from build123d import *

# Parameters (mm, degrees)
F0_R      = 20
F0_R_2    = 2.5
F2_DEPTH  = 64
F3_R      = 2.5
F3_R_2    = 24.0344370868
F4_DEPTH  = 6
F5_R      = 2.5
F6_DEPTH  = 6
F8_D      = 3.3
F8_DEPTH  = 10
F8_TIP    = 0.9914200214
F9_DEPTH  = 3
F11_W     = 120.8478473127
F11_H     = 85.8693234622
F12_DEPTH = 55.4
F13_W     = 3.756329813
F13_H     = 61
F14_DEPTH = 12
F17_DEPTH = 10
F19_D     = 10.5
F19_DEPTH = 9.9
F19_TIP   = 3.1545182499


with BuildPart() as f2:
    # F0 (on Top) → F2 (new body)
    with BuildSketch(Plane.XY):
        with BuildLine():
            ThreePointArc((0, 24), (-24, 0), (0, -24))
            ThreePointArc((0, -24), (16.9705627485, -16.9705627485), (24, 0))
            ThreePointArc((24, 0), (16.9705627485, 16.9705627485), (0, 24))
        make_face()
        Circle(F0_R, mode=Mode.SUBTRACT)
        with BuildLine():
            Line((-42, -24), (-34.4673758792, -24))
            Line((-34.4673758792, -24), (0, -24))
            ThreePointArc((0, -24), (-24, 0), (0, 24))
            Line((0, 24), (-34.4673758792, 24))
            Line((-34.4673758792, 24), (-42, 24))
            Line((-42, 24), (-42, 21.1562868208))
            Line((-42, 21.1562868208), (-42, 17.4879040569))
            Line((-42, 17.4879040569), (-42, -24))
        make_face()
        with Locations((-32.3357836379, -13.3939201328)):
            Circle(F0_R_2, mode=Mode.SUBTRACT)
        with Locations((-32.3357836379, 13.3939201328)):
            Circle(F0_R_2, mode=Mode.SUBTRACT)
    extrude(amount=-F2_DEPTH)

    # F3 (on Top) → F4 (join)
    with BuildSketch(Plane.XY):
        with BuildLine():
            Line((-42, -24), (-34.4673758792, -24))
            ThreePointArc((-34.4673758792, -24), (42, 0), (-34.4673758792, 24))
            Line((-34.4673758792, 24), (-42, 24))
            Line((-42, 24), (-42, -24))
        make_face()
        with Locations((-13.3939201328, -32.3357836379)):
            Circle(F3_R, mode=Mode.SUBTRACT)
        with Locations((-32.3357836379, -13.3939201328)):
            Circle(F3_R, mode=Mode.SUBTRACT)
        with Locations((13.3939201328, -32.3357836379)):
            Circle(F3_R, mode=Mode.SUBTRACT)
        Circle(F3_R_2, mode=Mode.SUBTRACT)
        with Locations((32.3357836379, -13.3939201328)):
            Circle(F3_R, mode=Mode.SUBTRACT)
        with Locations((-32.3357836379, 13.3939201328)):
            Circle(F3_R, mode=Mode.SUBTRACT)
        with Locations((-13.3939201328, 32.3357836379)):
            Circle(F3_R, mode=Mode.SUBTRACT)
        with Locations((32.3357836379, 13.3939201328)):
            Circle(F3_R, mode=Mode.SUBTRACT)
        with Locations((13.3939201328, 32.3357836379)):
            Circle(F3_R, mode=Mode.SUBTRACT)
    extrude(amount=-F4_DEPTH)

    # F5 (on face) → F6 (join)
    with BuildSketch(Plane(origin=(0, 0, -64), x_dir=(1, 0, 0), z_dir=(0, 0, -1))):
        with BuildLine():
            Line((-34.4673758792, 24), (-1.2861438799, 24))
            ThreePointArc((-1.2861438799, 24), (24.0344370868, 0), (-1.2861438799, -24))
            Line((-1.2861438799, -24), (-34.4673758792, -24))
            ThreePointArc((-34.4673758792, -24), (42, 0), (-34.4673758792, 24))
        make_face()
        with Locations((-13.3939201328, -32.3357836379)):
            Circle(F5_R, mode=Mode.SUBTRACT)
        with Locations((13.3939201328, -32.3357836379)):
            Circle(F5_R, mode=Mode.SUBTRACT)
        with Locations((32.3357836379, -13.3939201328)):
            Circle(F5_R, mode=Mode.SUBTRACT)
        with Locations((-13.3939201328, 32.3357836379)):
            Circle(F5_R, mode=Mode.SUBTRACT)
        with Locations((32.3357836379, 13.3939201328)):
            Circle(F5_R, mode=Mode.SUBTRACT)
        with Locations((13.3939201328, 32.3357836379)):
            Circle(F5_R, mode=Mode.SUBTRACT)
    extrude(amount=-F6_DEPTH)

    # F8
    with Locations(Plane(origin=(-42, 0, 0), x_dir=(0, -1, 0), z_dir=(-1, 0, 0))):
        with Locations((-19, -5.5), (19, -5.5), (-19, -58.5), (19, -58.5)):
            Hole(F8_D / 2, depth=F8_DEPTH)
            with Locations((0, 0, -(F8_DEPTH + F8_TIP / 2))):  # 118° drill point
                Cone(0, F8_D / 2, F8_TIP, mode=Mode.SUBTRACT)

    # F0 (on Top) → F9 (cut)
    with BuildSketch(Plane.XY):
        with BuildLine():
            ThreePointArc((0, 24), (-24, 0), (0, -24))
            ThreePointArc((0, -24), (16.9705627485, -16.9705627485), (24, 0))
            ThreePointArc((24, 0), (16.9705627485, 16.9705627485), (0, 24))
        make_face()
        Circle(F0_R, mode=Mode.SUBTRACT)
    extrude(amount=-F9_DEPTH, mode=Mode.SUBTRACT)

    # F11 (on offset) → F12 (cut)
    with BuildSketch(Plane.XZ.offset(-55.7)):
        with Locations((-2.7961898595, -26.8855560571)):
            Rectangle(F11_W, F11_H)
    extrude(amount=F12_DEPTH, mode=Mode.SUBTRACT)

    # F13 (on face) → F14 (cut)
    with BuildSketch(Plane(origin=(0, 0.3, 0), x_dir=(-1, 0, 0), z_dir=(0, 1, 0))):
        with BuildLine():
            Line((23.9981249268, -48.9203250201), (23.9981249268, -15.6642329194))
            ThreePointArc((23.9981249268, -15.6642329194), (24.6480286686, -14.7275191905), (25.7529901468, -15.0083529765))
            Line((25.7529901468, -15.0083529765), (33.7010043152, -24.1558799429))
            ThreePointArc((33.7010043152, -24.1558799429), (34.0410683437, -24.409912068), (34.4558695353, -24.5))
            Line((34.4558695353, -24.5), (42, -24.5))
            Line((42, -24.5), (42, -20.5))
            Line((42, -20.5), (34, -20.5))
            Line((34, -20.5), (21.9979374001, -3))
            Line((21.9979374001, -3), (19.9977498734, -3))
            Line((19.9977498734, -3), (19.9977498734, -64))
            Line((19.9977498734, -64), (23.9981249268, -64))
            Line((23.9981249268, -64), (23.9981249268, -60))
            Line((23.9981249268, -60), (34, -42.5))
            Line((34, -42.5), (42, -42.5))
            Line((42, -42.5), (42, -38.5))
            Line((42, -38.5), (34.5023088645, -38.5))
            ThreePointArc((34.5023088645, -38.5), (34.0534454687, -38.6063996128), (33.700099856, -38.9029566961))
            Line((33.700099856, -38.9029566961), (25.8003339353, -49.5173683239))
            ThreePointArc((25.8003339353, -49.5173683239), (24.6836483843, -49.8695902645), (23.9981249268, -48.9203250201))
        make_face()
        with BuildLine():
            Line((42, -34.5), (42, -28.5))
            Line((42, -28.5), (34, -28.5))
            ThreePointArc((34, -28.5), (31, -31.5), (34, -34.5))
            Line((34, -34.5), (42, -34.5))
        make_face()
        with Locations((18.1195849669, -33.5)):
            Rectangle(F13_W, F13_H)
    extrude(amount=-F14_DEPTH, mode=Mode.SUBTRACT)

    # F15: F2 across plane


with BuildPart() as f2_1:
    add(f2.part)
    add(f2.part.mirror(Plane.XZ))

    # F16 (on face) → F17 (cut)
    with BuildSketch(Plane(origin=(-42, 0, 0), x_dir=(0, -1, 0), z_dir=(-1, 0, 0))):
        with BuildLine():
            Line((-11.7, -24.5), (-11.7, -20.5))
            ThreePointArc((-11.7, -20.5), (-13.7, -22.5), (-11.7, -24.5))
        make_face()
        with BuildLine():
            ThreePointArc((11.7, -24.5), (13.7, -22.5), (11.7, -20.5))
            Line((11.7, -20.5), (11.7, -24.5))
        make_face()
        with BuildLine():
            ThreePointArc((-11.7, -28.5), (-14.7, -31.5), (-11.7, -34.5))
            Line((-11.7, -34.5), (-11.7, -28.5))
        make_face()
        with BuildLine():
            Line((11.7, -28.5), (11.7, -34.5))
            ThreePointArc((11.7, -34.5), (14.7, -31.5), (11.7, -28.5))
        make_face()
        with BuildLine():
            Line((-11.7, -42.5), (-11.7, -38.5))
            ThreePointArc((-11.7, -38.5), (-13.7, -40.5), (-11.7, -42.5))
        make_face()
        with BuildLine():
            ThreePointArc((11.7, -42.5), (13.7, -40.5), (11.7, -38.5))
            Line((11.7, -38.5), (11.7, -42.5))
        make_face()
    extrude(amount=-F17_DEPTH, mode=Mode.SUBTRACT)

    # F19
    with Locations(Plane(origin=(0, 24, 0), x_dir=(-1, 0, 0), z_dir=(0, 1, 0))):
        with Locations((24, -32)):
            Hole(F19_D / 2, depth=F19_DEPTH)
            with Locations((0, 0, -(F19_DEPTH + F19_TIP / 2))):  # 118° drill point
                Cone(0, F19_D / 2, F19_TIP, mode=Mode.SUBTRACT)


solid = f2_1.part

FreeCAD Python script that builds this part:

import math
import FreeCAD as App
import Part
import Sketcher
Q = App.Units.Quantity

doc = App.newDocument("Part")
body = doc.addObject("PartDesign::Body", "Body")

# Sketch on XY plane
sketch1 = body.newObject("Sketcher::SketchObject", "Sketch")
sketch1.AttachmentSupport = (doc.getObject("XY_Plane"), [""])
sketch1.MapMode = "FlatFace"
sketch1.addGeometry(Part.ArcOfCircle(Part.Circle(App.Vector(0, 0, 0), App.Vector(0, 0, 1), 24), math.radians(0), math.radians(90)), False)
sketch1.addGeometry(Part.LineSegment(App.Vector(0, 24, 0), App.Vector(-42, 24, 0)), False)
sketch1.addGeometry(Part.LineSegment(App.Vector(-42, 24, 0), App.Vector(-42, -24, 0)), False)
sketch1.addGeometry(Part.LineSegment(App.Vector(-42, -24, 0), App.Vector(0, -24, 0)), False)
sketch1.addGeometry(Part.ArcOfCircle(Part.Circle(App.Vector(0, 0, 0), App.Vector(0, 0, 1), 24), math.radians(-90), math.radians(0)), False)
sketch1.addGeometry(Part.Circle(App.Vector(-32.335784, -13.39392, 0), App.Vector(0, 0, 1), 2.5), False)
sketch1.addGeometry(Part.Circle(App.Vector(-32.335784, 13.39392, 0), App.Vector(0, 0, 1), 2.5), False)
sketch1.addGeometry(Part.Circle(App.Vector(0, 0, 0), App.Vector(0, 0, 1), 20), False)
sketch1.addConstraint(Sketcher.Constraint("Tangent", 0, 2, 1, 1))
sketch1.addConstraint(Sketcher.Constraint("Coincident", 1, 2, 2, 1))
sketch1.addConstraint(Sketcher.Constraint("Coincident", 2, 2, 3, 1))
sketch1.addConstraint(Sketcher.Constraint("Tangent", 3, 2, 4, 1))
sketch1.addConstraint(Sketcher.Constraint("Tangent", 4, 2, 0, 1))
sketch1.addConstraint(Sketcher.Constraint("Horizontal", 1))
sketch1.addConstraint(Sketcher.Constraint("Vertical", 2))
sketch1.addConstraint(Sketcher.Constraint("Horizontal", 3))
sketch1.addConstraint(Sketcher.Constraint("Coincident", 0, 3, -1, 1))
sketch1.addConstraint(Sketcher.Constraint("Coincident", 7, 3, -1, 1))
sketch1.addConstraint(Sketcher.Constraint("Equal", 0, 4))
sketch1.addConstraint(Sketcher.Constraint("Equal", 5, 6))
sketch1.addConstraint(Sketcher.Constraint("Symmetric", 5, 3, 6, 3, -1))
sketch1.addConstraint(Sketcher.Constraint("PointOnObject", 4, 2, -1))
sketch1.addConstraint(Sketcher.Constraint("Diameter", 5, Q("5 mm")))
sketch1.addConstraint(Sketcher.Constraint("Diameter", 7, Q("40 mm")))
sketch1.addConstraint(Sketcher.Constraint("Radius", 0, Q("24 mm")))
sketch1.addConstraint(Sketcher.Constraint("DistanceX", 1, 2, 1, 1, Q("42 mm")))
sketch1.addConstraint(Sketcher.Constraint("DistanceY", 5, 3, -1, 1, Q("13.39392 mm")))
sketch1.addConstraint(Sketcher.Constraint("DistanceX", 5, 3, -1, 1, Q("32.335784 mm")))
pad1 = body.newObject("PartDesign::Pad", "Pad")
pad1.Profile = sketch1
pad1.Length = 64
pad1.Reversed = True

# Sketch on XY plane
sketch2 = body.newObject("Sketcher::SketchObject", "Sketch001")
sketch2.AttachmentSupport = (doc.getObject("XY_Plane"), [""])
sketch2.MapMode = "FlatFace"
sketch2.addGeometry(Part.LineSegment(App.Vector(-42, -24, 0), App.Vector(-34.467376, -24, 0)), False)
sketch2.addGeometry(Part.ArcOfCircle(Part.Circle(App.Vector(0, 0, 0), App.Vector(0, 0, 1), 42), math.radians(-145.150095), math.radians(145.150095)), False)
sketch2.addGeometry(Part.LineSegment(App.Vector(-34.467376, 24, 0), App.Vector(-42, 24, 0)), False)
sketch2.addGeometry(Part.LineSegment(App.Vector(-42, 24, 0), App.Vector(-42, -24, 0)), False)
sketch2.addGeometry(Part.Circle(App.Vector(-13.39392, -32.335784, 0), App.Vector(0, 0, 1), 2.5), False)
sketch2.addGeometry(Part.Circle(App.Vector(-32.335784, -13.39392, 0), App.Vector(0, 0, 1), 2.5), False)
sketch2.addGeometry(Part.Circle(App.Vector(13.39392, -32.335784, 0), App.Vector(0, 0, 1), 2.5), False)
sketch2.addGeometry(Part.Circle(App.Vector(32.335784, -13.39392, 0), App.Vector(0, 0, 1), 2.5), False)
sketch2.addGeometry(Part.Circle(App.Vector(-32.335784, 13.39392, 0), App.Vector(0, 0, 1), 2.5), False)
sketch2.addGeometry(Part.Circle(App.Vector(-13.39392, 32.335784, 0), App.Vector(0, 0, 1), 2.5), False)
sketch2.addGeometry(Part.Circle(App.Vector(0, 0, 0), App.Vector(0, 0, 1), 24.034437), False)
sketch2.addGeometry(Part.Circle(App.Vector(32.335784, 13.39392, 0), App.Vector(0, 0, 1), 2.5), False)
sketch2.addGeometry(Part.Circle(App.Vector(13.39392, 32.335784, 0), App.Vector(0, 0, 1), 2.5), False)
sketch2.addConstraint(Sketcher.Constraint("Coincident", 0, 2, 1, 1))
sketch2.addConstraint(Sketcher.Constraint("Coincident", 1, 2, 2, 1))
sketch2.addConstraint(Sketcher.Constraint("Coincident", 2, 2, 3, 1))
sketch2.addConstraint(Sketcher.Constraint("Coincident", 3, 2, 0, 1))
sketch2.addConstraint(Sketcher.Constraint("Horizontal", 0))
sketch2.addConstraint(Sketcher.Constraint("Horizontal", 2))
sketch2.addConstraint(Sketcher.Constraint("Vertical", 3))
sketch2.addConstraint(Sketcher.Constraint("Coincident", 1, 3, -1, 1))
sketch2.addConstraint(Sketcher.Constraint("Coincident", 10, 3, -1, 1))
sketch2.addConstraint(Sketcher.Constraint("Equal", 4, 5))
sketch2.addConstraint(Sketcher.Constraint("Equal", 5, 6))
sketch2.addConstraint(Sketcher.Constraint("Equal", 6, 7))
sketch2.addConstraint(Sketcher.Constraint("Equal", 7, 8))
sketch2.addConstraint(Sketcher.Constraint("Equal", 8, 9))
sketch2.addConstraint(Sketcher.Constraint("Equal", 9, 11))
sketch2.addConstraint(Sketcher.Constraint("Equal", 11, 12))
sketch2.addConstraint(Sketcher.Constraint("Symmetric", 7, 3, 8, 3, -1, 1))
sketch2.addConstraint(Sketcher.Constraint("Symmetric", 6, 3, 9, 3, -1, 1))
sketch2.addConstraint(Sketcher.Constraint("Symmetric", 5, 3, 11, 3, -1, 1))
sketch2.addConstraint(Sketcher.Constraint("Symmetric", 4, 3, 12, 3, -1, 1))
sketch2.addConstraint(Sketcher.Constraint("Symmetric", 4, 3, 6, 3, -2))
sketch2.addConstraint(Sketcher.Constraint("Symmetric", 5, 3, 7, 3, -2))
sketch2.addConstraint(Sketcher.Constraint("Vertical", 0, 2, 1, 2))
sketch2.addConstraint(Sketcher.Constraint("Diameter", 4, Q("5 mm")))
sketch2.addConstraint(Sketcher.Constraint("Radius", 1, Q("42 mm")))
sketch2.addConstraint(Sketcher.Constraint("DistanceY", 3, 2, 3, 1, Q("48 mm")))
sketch2.addConstraint(Sketcher.Constraint("DistanceX", 2, 2, -1, 1, Q("42 mm")))
sketch2.addConstraint(Sketcher.Constraint("Diameter", 10, Q("48.068874 mm")))
sketch2.addConstraint(Sketcher.Constraint("DistanceX", 4, 3, -1, 1, Q("13.39392 mm")))
sketch2.addConstraint(Sketcher.Constraint("DistanceY", 5, 3, -1, 1, Q("13.39392 mm")))
sketch2.addConstraint(Sketcher.Constraint("DistanceY", 4, 3, -1, 1, Q("32.335784 mm")))
sketch2.addConstraint(Sketcher.Constraint("DistanceX", 5, 3, -1, 1, Q("32.335784 mm")))
pad2 = body.newObject("PartDesign::Pad", "Pad001")
pad2.Profile = sketch2
pad2.Length = 6
pad2.Reversed = True

# Sketch on XY plane
sketch3 = body.newObject("Sketcher::SketchObject", "Sketch002")
sketch3.AttachmentSupport = (doc.getObject("XY_Plane"), [""])
sketch3.MapMode = "FlatFace"
sketch3.AttachmentOffset = App.Placement(App.Vector(0, 0, -64), App.Rotation())
sketch3.addGeometry(Part.LineSegment(App.Vector(-34.467376, -24, 0), App.Vector(-1.286144, -24, 0)), False)
sketch3.addGeometry(Part.ArcOfCircle(Part.Circle(App.Vector(0, 0, 0), App.Vector(0, 0, 1), 24.034437), math.radians(-93.067508), math.radians(93.067508)), False)
sketch3.addGeometry(Part.LineSegment(App.Vector(-1.286144, 24, 0), App.Vector(-34.467376, 24, 0)), False)
sketch3.addGeometry(Part.ArcOfCircle(Part.Circle(App.Vector(0, 0, 0), App.Vector(0, 0, 1), 42), math.radians(-145.150095), math.radians(145.150095)), False)
sketch3.addGeometry(Part.Circle(App.Vector(-13.39392, 32.335784, 0), App.Vector(0, 0, 1), 2.5), False)
sketch3.addGeometry(Part.Circle(App.Vector(13.39392, 32.335784, 0), App.Vector(0, 0, 1), 2.5), False)
sketch3.addGeometry(Part.Circle(App.Vector(32.335784, 13.39392, 0), App.Vector(0, 0, 1), 2.5), False)
sketch3.addGeometry(Part.Circle(App.Vector(-13.39392, -32.335784, 0), App.Vector(0, 0, 1), 2.5), False)
sketch3.addGeometry(Part.Circle(App.Vector(32.335784, -13.39392, 0), App.Vector(0, 0, 1), 2.5), False)
sketch3.addGeometry(Part.Circle(App.Vector(13.39392, -32.335784, 0), App.Vector(0, 0, 1), 2.5), False)
sketch3.addConstraint(Sketcher.Constraint("Coincident", 0, 2, 1, 1))
sketch3.addConstraint(Sketcher.Constraint("Coincident", 1, 2, 2, 1))
sketch3.addConstraint(Sketcher.Constraint("Coincident", 2, 2, 3, 2))
sketch3.addConstraint(Sketcher.Constraint("Coincident", 3, 1, 0, 1))
sketch3.addConstraint(Sketcher.Constraint("Horizontal", 0))
sketch3.addConstraint(Sketcher.Constraint("Horizontal", 2))
sketch3.addConstraint(Sketcher.Constraint("Coincident", 1, 3, -1, 1))
sketch3.addConstraint(Sketcher.Constraint("Coincident", 3, 3, -1, 1))
sketch3.addConstraint(Sketcher.Constraint("Equal", 4, 5))
sketch3.addConstraint(Sketcher.Constraint("Equal", 5, 6))
sketch3.addConstraint(Sketcher.Constraint("Equal", 6, 7))
sketch3.addConstraint(Sketcher.Constraint("Equal", 7, 8))
sketch3.addConstraint(Sketcher.Constraint("Equal", 8, 9))
sketch3.addConstraint(Sketcher.Constraint("Symmetric", 5, 3, 7, 3, -1, 1))
sketch3.addConstraint(Sketcher.Constraint("Symmetric", 4, 3, 9, 3, -1, 1))
sketch3.addConstraint(Sketcher.Constraint("Symmetric", 4, 3, 5, 3, -2))
sketch3.addConstraint(Sketcher.Constraint("Symmetric", 6, 3, 8, 3, -1))
sketch3.addConstraint(Sketcher.Constraint("Vertical", 0, 2, 1, 2))
sketch3.addConstraint(Sketcher.Constraint("Diameter", 4, Q("5 mm")))
sketch3.addConstraint(Sketcher.Constraint("Radius", 3, Q("42 mm")))
sketch3.addConstraint(Sketcher.Constraint("DistanceY", 0, 2, -1, 1, Q("24 mm")))
sketch3.addConstraint(Sketcher.Constraint("Radius", 1, Q("24.034437 mm")))
sketch3.addConstraint(Sketcher.Constraint("DistanceX", 4, 3, -1, 1, Q("13.39392 mm")))
sketch3.addConstraint(Sketcher.Constraint("DistanceY", -1, 1, 6, 3, Q("13.39392 mm")))
sketch3.addConstraint(Sketcher.Constraint("DistanceY", -1, 1, 4, 3, Q("32.335784 mm")))
sketch3.addConstraint(Sketcher.Constraint("DistanceX", -1, 1, 6, 3, Q("32.335784 mm")))
pad3 = body.newObject("PartDesign::Pad", "Pad002")
pad3.Profile = sketch3
pad3.Length = 6

# Sketch on YZ plane
sketch4 = body.newObject("Sketcher::SketchObject", "Sketch003")
sketch4.AttachmentSupport = (doc.getObject("YZ_Plane"), [""])
sketch4.MapMode = "FlatFace"
sketch4.AttachmentOffset = App.Placement(App.Vector(0, 0, -42), App.Rotation())
sketch4.addGeometry(Part.Circle(App.Vector(19, -5.5, 0), App.Vector(0, 0, 1), 1.65), False)
sketch4.addGeometry(Part.Circle(App.Vector(-19, -5.5, 0), App.Vector(0, 0, 1), 1.65), False)
sketch4.addGeometry(Part.Circle(App.Vector(19, -58.5, 0), App.Vector(0, 0, 1), 1.65), False)
sketch4.addGeometry(Part.Circle(App.Vector(-19, -58.5, 0), App.Vector(0, 0, 1), 1.65), False)
sketch4.addConstraint(Sketcher.Constraint("Equal", 0, 1))
sketch4.addConstraint(Sketcher.Constraint("Equal", 1, 2))
sketch4.addConstraint(Sketcher.Constraint("Equal", 2, 3))
sketch4.addConstraint(Sketcher.Constraint("Symmetric", 0, 3, 1, 3, -2))
sketch4.addConstraint(Sketcher.Constraint("Symmetric", 2, 3, 3, 3, -2))
sketch4.addConstraint(Sketcher.Constraint("Vertical", 0, 3, 2, 3))
sketch4.addConstraint(Sketcher.Constraint("Diameter", 0, Q("3.3 mm")))
sketch4.addConstraint(Sketcher.Constraint("DistanceX", -1, 1, 0, 3, Q("19 mm")))
sketch4.addConstraint(Sketcher.Constraint("DistanceY", 2, 3, 0, 3, Q("53 mm")))
sketch4.addConstraint(Sketcher.Constraint("DistanceY", 0, 3, -1, 1, Q("5.5 mm")))
doc.recompute()
hole = body.newObject("PartDesign::Hole", "Hole")
hole.Profile = sketch4
hole.ThreadType = "None"
hole.Diameter = 3.3
hole.DepthType = "Dimension"
hole.Depth = 10
hole.DrillPoint = "Angled"
hole.DrillPointAngle = 118
hole.Reversed = True

# Sketch on XY plane
sketch5 = body.newObject("Sketcher::SketchObject", "Sketch004")
sketch5.AttachmentSupport = (doc.getObject("XY_Plane"), [""])
sketch5.MapMode = "FlatFace"
sketch5.addGeometry(Part.ArcOfCircle(Part.Circle(App.Vector(0, 0, 0), App.Vector(0, 0, 1), 24), math.radians(90), math.radians(270)), False)
sketch5.addGeometry(Part.ArcOfCircle(Part.Circle(App.Vector(0, 0, 0), App.Vector(0, 0, 1), 24), math.radians(-90), math.radians(0)), False)
sketch5.addGeometry(Part.ArcOfCircle(Part.Circle(App.Vector(0, 0, 0), App.Vector(0, 0, 1), 24), math.radians(0), math.radians(90)), False)
sketch5.addGeometry(Part.Circle(App.Vector(0, 0, 0), App.Vector(0, 0, 1), 20), False)
sketch5.addConstraint(Sketcher.Constraint("Tangent", 0, 2, 1, 1))
sketch5.addConstraint(Sketcher.Constraint("Tangent", 1, 2, 2, 1))
sketch5.addConstraint(Sketcher.Constraint("Tangent", 2, 2, 0, 1))
sketch5.addConstraint(Sketcher.Constraint("Coincident", 0, 3, -1, 1))
sketch5.addConstraint(Sketcher.Constraint("Coincident", 3, 3, -1, 1))
sketch5.addConstraint(Sketcher.Constraint("PointOnObject", 0, 2, -2))
sketch5.addConstraint(Sketcher.Constraint("PointOnObject", 1, 2, -1))
sketch5.addConstraint(Sketcher.Constraint("PointOnObject", 2, 2, -2))
sketch5.addConstraint(Sketcher.Constraint("Diameter", 3, Q("40 mm")))
sketch5.addConstraint(Sketcher.Constraint("Radius", 0, Q("24 mm")))
pocket1 = body.newObject("PartDesign::Pocket", "Pocket")
pocket1.Profile = sketch5
pocket1.Length = 3

# Sketch on XZ plane
sketch6 = body.newObject("Sketcher::SketchObject", "Sketch005")
sketch6.AttachmentSupport = (doc.getObject("XZ_Plane"), [""])
sketch6.MapMode = "FlatFace"
sketch6.AttachmentOffset = App.Placement(App.Vector(0, 0, -55.7), App.Rotation())
sketch6.addGeometry(Part.LineSegment(App.Vector(-63.220114, 16.049106, 0), App.Vector(-63.220114, -69.820218, 0)), False)
sketch6.addGeometry(Part.LineSegment(App.Vector(-63.220114, -69.820218, 0), App.Vector(57.627734, -69.820218, 0)), False)
sketch6.addGeometry(Part.LineSegment(App.Vector(57.627734, -69.820218, 0), App.Vector(57.627734, 16.049106, 0)), False)
sketch6.addGeometry(Part.LineSegment(App.Vector(57.627734, 16.049106, 0), App.Vector(-63.220114, 16.049106, 0)), False)
sketch6.addConstraint(Sketcher.Constraint("Coincident", 0, 2, 1, 1))
sketch6.addConstraint(Sketcher.Constraint("Coincident", 1, 2, 2, 1))
sketch6.addConstraint(Sketcher.Constraint("Coincident", 2, 2, 3, 1))
sketch6.addConstraint(Sketcher.Constraint("Coincident", 3, 2, 0, 1))
sketch6.addConstraint(Sketcher.Constraint("Vertical", 0))
sketch6.addConstraint(Sketcher.Constraint("Horizontal", 1))
sketch6.addConstraint(Sketcher.Constraint("Vertical", 2))
sketch6.addConstraint(Sketcher.Constraint("Horizontal", 3))
sketch6.addConstraint(Sketcher.Constraint("DistanceX", 1, 1, 1, 2, Q("120.847847 mm")))
sketch6.addConstraint(Sketcher.Constraint("DistanceY", 0, 2, 0, 1, Q("85.869323 mm")))
sketch6.addConstraint(Sketcher.Constraint("DistanceX", 0, 2, -1, 1, Q("63.220114 mm")))
sketch6.addConstraint(Sketcher.Constraint("DistanceY", 0, 2, -1, 1, Q("69.820218 mm")))
pocket2 = body.newObject("PartDesign::Pocket", "Pocket001")
pocket2.Profile = sketch6
pocket2.Length = 55.4
pocket2.Reversed = True

# Sketch on XZ plane
sketch7 = body.newObject("Sketcher::SketchObject", "Sketch006")
sketch7.AttachmentSupport = (doc.getObject("XZ_Plane"), [""])
sketch7.MapMode = "FlatFace"
sketch7.AttachmentOffset = App.Placement(App.Vector(0, 0, -0.3), App.Rotation())
sketch7.addGeometry(Part.LineSegment(App.Vector(-23.998125, -48.920325, 0), App.Vector(-23.998125, -15.664233, 0)), False)
sketch7.addGeometry(Part.ArcOfCircle(Part.Circle(App.Vector(-24.998125, -15.664233, 0), App.Vector(0, 0, 1), 1), math.radians(0), math.radians(139.013594)), False)
sketch7.addGeometry(Part.LineSegment(App.Vector(-25.75299, -15.008353, 0), App.Vector(-33.701004, -24.15588, 0)), False)
sketch7.addGeometry(Part.ArcOfCircle(Part.Circle(App.Vector(-34.45587, -23.5, 0), App.Vector(0, 0, 1), 1), math.radians(-90), math.radians(-40.986406)), False)
sketch7.addGeometry(Part.LineSegment(App.Vector(-34.45587, -24.5, 0), App.Vector(-42, -24.5, 0)), False)
sketch7.addGeometry(Part.LineSegment(App.Vector(-42, -24.5, 0), App.Vector(-42, -20.5, 0)), False)
sketch7.addGeometry(Part.LineSegment(App.Vector(-42, -20.5, 0), App.Vector(-34, -20.5, 0)), False)
sketch7.addGeometry(Part.LineSegment(App.Vector(-34, -20.5, 0), App.Vector(-21.997937, -3, 0)), False)
sketch7.addGeometry(Part.LineSegment(App.Vector(-21.997937, -3, 0), App.Vector(-16.24142, -3, 0)), False)
sketch7.addGeometry(Part.LineSegment(App.Vector(-16.24142, -3, 0), App.Vector(-16.24142, -64, 0)), False)
sketch7.addGeometry(Part.LineSegment(App.Vector(-16.24142, -64, 0), App.Vector(-23.998125, -64, 0)), False)
sketch7.addGeometry(Part.LineSegment(App.Vector(-23.998125, -64, 0), App.Vector(-23.998125, -60, 0)), False)
sketch7.addGeometry(Part.LineSegment(App.Vector(-23.998125, -60, 0), App.Vector(-34, -42.5, 0)), False)
sketch7.addGeometry(Part.LineSegment(App.Vector(-34, -42.5, 0), App.Vector(-42, -42.5, 0)), False)
sketch7.addGeometry(Part.LineSegment(App.Vector(-42, -42.5, 0), App.Vector(-42, -38.5, 0)), False)
sketch7.addGeometry(Part.LineSegment(App.Vector(-42, -38.5, 0), App.Vector(-34.502309, -38.5, 0)), False)
sketch7.addGeometry(Part.ArcOfCircle(Part.Circle(App.Vector(-34.502309, -39.5, 0), App.Vector(0, 0, 1), 1), math.radians(36.658432), math.radians(90)), False)
sketch7.addGeometry(Part.LineSegment(App.Vector(-33.7001, -38.902957, 0), App.Vector(-25.800334, -49.517368, 0)), False)
sketch7.addGeometry(Part.ArcOfCircle(Part.Circle(App.Vector(-24.998125, -48.920325, 0), App.Vector(0, 0, 1), 1), math.radians(-143.341568), math.radians(0)), False)
sketch7.addGeometry(Part.LineSegment(App.Vector(-42, -34.5, 0), App.Vector(-42, -28.5, 0)), False)
sketch7.addGeometry(Part.LineSegment(App.Vector(-42, -28.5, 0), App.Vector(-34, -28.5, 0)), False)
sketch7.addGeometry(Part.ArcOfCircle(Part.Circle(App.Vector(-34, -31.5, 0), App.Vector(0, 0, 1), 3), math.radians(-90), math.radians(90)), False)
sketch7.addGeometry(Part.LineSegment(App.Vector(-34, -34.5, 0), App.Vector(-42, -34.5, 0)), False)
sketch7.addConstraint(Sketcher.Constraint("Tangent", 0, 2, 1, 1))
sketch7.addConstraint(Sketcher.Constraint("Tangent", 1, 2, 2, 1))
sketch7.addConstraint(Sketcher.Constraint("Tangent", 2, 2, 3, 2))
sketch7.addConstraint(Sketcher.Constraint("Tangent", 3, 1, 4, 1))
sketch7.addConstraint(Sketcher.Constraint("Coincident", 4, 2, 5, 1))
sketch7.addConstraint(Sketcher.Constraint("Coincident", 5, 2, 6, 1))
sketch7.addConstraint(Sketcher.Constraint("Coincident", 6, 2, 7, 1))
sketch7.addConstraint(Sketcher.Constraint("Coincident", 7, 2, 8, 1))
sketch7.addConstraint(Sketcher.Constraint("Coincident", 8, 2, 9, 1))
sketch7.addConstraint(Sketcher.Constraint("Coincident", 9, 2, 10, 1))
sketch7.addConstraint(Sketcher.Constraint("Coincident", 10, 2, 11, 1))
sketch7.addConstraint(Sketcher.Constraint("Coincident", 11, 2, 12, 1))
sketch7.addConstraint(Sketcher.Constraint("Coincident", 12, 2, 13, 1))
sketch7.addConstraint(Sketcher.Constraint("Coincident", 13, 2, 14, 1))
sketch7.addConstraint(Sketcher.Constraint("Coincident", 14, 2, 15, 1))
sketch7.addConstraint(Sketcher.Constraint("Tangent", 15, 2, 16, 2))
sketch7.addConstraint(Sketcher.Constraint("Tangent", 16, 1, 17, 1))
sketch7.addConstraint(Sketcher.Constraint("Tangent", 17, 2, 18, 1))
sketch7.addConstraint(Sketcher.Constraint("Tangent", 18, 2, 0, 1))
sketch7.addConstraint(Sketcher.Constraint("Coincident", 19, 2, 20, 1))
sketch7.addConstraint(Sketcher.Constraint("Tangent", 20, 2, 21, 2))
sketch7.addConstraint(Sketcher.Constraint("Tangent", 21, 1, 22, 1))
sketch7.addConstraint(Sketcher.Constraint("Coincident", 22, 2, 19, 1))
sketch7.addConstraint(Sketcher.Constraint("Vertical", 0))
sketch7.addConstraint(Sketcher.Constraint("Horizontal", 4))
sketch7.addConstraint(Sketcher.Constraint("Vertical", 5))
sketch7.addConstraint(Sketcher.Constraint("Horizontal", 6))
sketch7.addConstraint(Sketcher.Constraint("Horizontal", 8))
sketch7.addConstraint(Sketcher.Constraint("Vertical", 9))
sketch7.addConstraint(Sketcher.Constraint("Horizontal", 10))
sketch7.addConstraint(Sketcher.Constraint("Vertical", 11))
sketch7.addConstraint(Sketcher.Constraint("Horizontal", 13))
sketch7.addConstraint(Sketcher.Constraint("Vertical", 14))
sketch7.addConstraint(Sketcher.Constraint("Horizontal", 15))
sketch7.addConstraint(Sketcher.Constraint("Vertical", 19))
sketch7.addConstraint(Sketcher.Constraint("Horizontal", 20))
sketch7.addConstraint(Sketcher.Constraint("Horizontal", 22))
sketch7.addConstraint(Sketcher.Constraint("Equal", 1, 3))
sketch7.addConstraint(Sketcher.Constraint("Equal", 3, 16))
sketch7.addConstraint(Sketcher.Constraint("Equal", 16, 18))
sketch7.addConstraint(Sketcher.Constraint("Vertical", 21, 3, 6, 2))
sketch7.addConstraint(Sketcher.Constraint("Vertical", 0, 2, 10, 2))
sketch7.addConstraint(Sketcher.Constraint("Vertical", 6, 2, 12, 2))
sketch7.addConstraint(Sketcher.Constraint("Vertical", 5, 2, 13, 2))
sketch7.addConstraint(Sketcher.Constraint("Vertical", 14, 2, 19, 2))
sketch7.addConstraint(Sketcher.Constraint("Equal", 5, 11))
sketch7.addConstraint(Sketcher.Constraint("Equal", 11, 14))
sketch7.addConstraint(Sketcher.Constraint("Radius", 1, Q("1 mm")))
sketch7.addConstraint(Sketcher.Constraint("Radius", 21, Q("3 mm")))
sketch7.addConstraint(Sketcher.Constraint("DistanceX", 6, 1, 6, 2, Q("8 mm")))
sketch7.addConstraint(Sketcher.Constraint("DistanceY", 5, 1, 5, 2, Q("4 mm")))
sketch7.addConstraint(Sketcher.Constraint("DistanceY", 9, 2, 9, 1, Q("61 mm")))
sketch7.addConstraint(Sketcher.Constraint("DistanceX", 21, 3, -1, 1, Q("34 mm")))
sketch7.addConstraint(Sketcher.Constraint("DistanceY", 7, 2, -1, 1, Q("3 mm")))
sketch7.addConstraint(Sketcher.Constraint("DistanceY", 16, 3, 3, 3, Q("16 mm")))
sketch7.addConstraint(Sketcher.Constraint("DistanceY", 21, 3, 3, 3, Q("8 mm")))
sketch7.addConstraint(Sketcher.Constraint("DistanceY", 3, 3, -1, 1, Q("23.5 mm")))
sketch7.addConstraint(Sketcher.Constraint("DistanceX", 4, 2, 4, 1, Q("7.54413 mm")))
sketch7.addConstraint(Sketcher.Constraint("DistanceX", 15, 1, 15, 2, Q("7.497691 mm")))
sketch7.addConstraint(Sketcher.Constraint("DistanceX", 16, 1, -1, 1, Q("33.7001 mm")))
sketch7.addConstraint(Sketcher.Constraint("Distance", 7, Q("21.220262 mm")))
sketch7.addConstraint(Sketcher.Constraint("Distance", 17, Q("13.231479 mm")))
sketch7.addConstraint(Sketcher.Constraint("DistanceX", 8, 1, 8, 2, Q("5.756517 mm")))
sketch7.addConstraint(Sketcher.Constraint("DistanceY", 0, 1, 0, 2, Q("33.256092 mm")))
pocket3 = body.newObject("PartDesign::Pocket", "Pocket002")
pocket3.Profile = sketch7
pocket3.Length = 12
pocket3.Reversed = True
body2 = doc.addObject("PartDesign::Body", "Body001")
doc.recompute()

body2.BaseFeature = body
doc.recompute()

mirroring = doc.addObject("Part::Mirroring", "Mirroring")
mirroring.Source = body
mirroring.Base = App.Vector(0, 0, 0)
mirroring.Normal = App.Vector(0, -1, 0)
body3 = doc.addObject("PartDesign::Body", "Body002")
body3.BaseFeature = mirroring
boolean = body2.newObject("PartDesign::Boolean", "Boolean")
boolean.Type = "Fuse"
boolean.addObjects([body3])
doc.recompute()

# Sketch on YZ plane
sketch8 = body2.newObject("Sketcher::SketchObject", "Sketch007")
sketch8.AttachmentSupport = (doc.getObject("YZ_Plane001"), [""])
sketch8.MapMode = "FlatFace"
sketch8.AttachmentOffset = App.Placement(App.Vector(0, 0, -42), App.Rotation())
sketch8.addGeometry(Part.LineSegment(App.Vector(11.7, -24.5, 0), App.Vector(11.7, -20.5, 0)), False)
sketch8.addGeometry(Part.ArcOfCircle(Part.Circle(App.Vector(11.7, -22.5, 0), App.Vector(0, 0, 1), 2), math.radians(-90), math.radians(90)), False)
sketch8.addGeometry(Part.ArcOfCircle(Part.Circle(App.Vector(-11.7, -22.5, 0), App.Vector(0, 0, 1), 2), math.radians(90), math.radians(270)), False)
sketch8.addGeometry(Part.LineSegment(App.Vector(-11.7, -20.5, 0), App.Vector(-11.7, -24.5, 0)), False)
sketch8.addGeometry(Part.ArcOfCircle(Part.Circle(App.Vector(11.7, -31.5, 0), App.Vector(0, 0, 1), 3), math.radians(-90), math.radians(90)), False)
sketch8.addGeometry(Part.LineSegment(App.Vector(11.7, -34.5, 0), App.Vector(11.7, -28.5, 0)), False)
sketch8.addGeometry(Part.LineSegment(App.Vector(-11.7, -28.5, 0), App.Vector(-11.7, -34.5, 0)), False)
sketch8.addGeometry(Part.ArcOfCircle(Part.Circle(App.Vector(-11.7, -31.5, 0), App.Vector(0, 0, 1), 3), math.radians(90), math.radians(270)), False)
sketch8.addGeometry(Part.LineSegment(App.Vector(11.7, -42.5, 0), App.Vector(11.7, -38.5, 0)), False)
sketch8.addGeometry(Part.ArcOfCircle(Part.Circle(App.Vector(11.7, -40.5, 0), App.Vector(0, 0, 1), 2), math.radians(-90), math.radians(90)), False)
sketch8.addGeometry(Part.ArcOfCircle(Part.Circle(App.Vector(-11.7, -40.5, 0), App.Vector(0, 0, 1), 2), math.radians(90), math.radians(270)), False)
sketch8.addGeometry(Part.LineSegment(App.Vector(-11.7, -38.5, 0), App.Vector(-11.7, -42.5, 0)), False)
sketch8.addConstraint(Sketcher.Constraint("Coincident", 0, 1, 1, 1))
sketch8.addConstraint(Sketcher.Constraint("Coincident", 1, 2, 0, 2))
sketch8.addConstraint(Sketcher.Constraint("Coincident", 2, 1, 3, 1))
sketch8.addConstraint(Sketcher.Constraint("Coincident", 3, 2, 2, 2))
sketch8.addConstraint(Sketcher.Constraint("Coincident", 4, 1, 5, 1))
sketch8.addConstraint(Sketcher.Constraint("Coincident", 5, 2, 4, 2))
sketch8.addConstraint(Sketcher.Constraint("Coincident", 6, 1, 7, 1))
sketch8.addConstraint(Sketcher.Constraint("Coincident", 7, 2, 6, 2))
sketch8.addConstraint(Sketcher.Constraint("Coincident", 8, 1, 9, 1))
sketch8.addConstraint(Sketcher.Constraint("Coincident", 9, 2, 8, 2))
sketch8.addConstraint(Sketcher.Constraint("Coincident", 10, 1, 11, 1))
sketch8.addConstraint(Sketcher.Constraint("Coincident", 11, 2, 10, 2))
sketch8.addConstraint(Sketcher.Constraint("Vertical", 0))
sketch8.addConstraint(Sketcher.Constraint("Vertical", 3))
sketch8.addConstraint(Sketcher.Constraint("Vertical", 5))
sketch8.addConstraint(Sketcher.Constraint("Vertical", 6))
sketch8.addConstraint(Sketcher.Constraint("Vertical", 8))
sketch8.addConstraint(Sketcher.Constraint("Vertical", 11))
sketch8.addConstraint(Sketcher.Constraint("Equal", 1, 2))
sketch8.addConstraint(Sketcher.Constraint("Equal", 4, 7))
sketch8.addConstraint(Sketcher.Constraint("Equal", 2, 9))
sketch8.addConstraint(Sketcher.Constraint("Equal", 9, 10))
sketch8.addConstraint(Sketcher.Constraint("Symmetric", 1, 3, 2, 3, -2))
sketch8.addConstraint(Sketcher.Constraint("Symmetric", 4, 3, 7, 3, -2))
sketch8.addConstraint(Sketcher.Constraint("Symmetric", 9, 3, 10, 3, -2))
sketch8.addConstraint(Sketcher.Constraint("Vertical", 1, 3, 4, 3))
sketch8.addConstraint(Sketcher.Constraint("Vertical", 4, 3, 9, 3))
sketch8.addConstraint(Sketcher.Constraint("Vertical", 9, 3, 0, 1))
sketch8.addConstraint(Sketcher.Constraint("Vertical", 10, 3, 2, 1))
sketch8.addConstraint(Sketcher.Constraint("Vertical", 1, 2, 4, 1))
sketch8.addConstraint(Sketcher.Constraint("Vertical", 3, 2, 6, 1))
sketch8.addConstraint(Sketcher.Constraint("Vertical", 5, 2, 8, 1))
sketch8.addConstraint(Sketcher.Constraint("Vertical", 7, 2, 10, 1))
sketch8.addConstraint(Sketcher.Constraint("Radius", 1, Q("2 mm")))
sketch8.addConstraint(Sketcher.Constraint("Radius", 4, Q("3 mm")))
sketch8.addConstraint(Sketcher.Constraint("DistanceY", 4, 3, 1, 3, Q("9 mm")))
sketch8.addConstraint(Sketcher.Constraint("DistanceY", 9, 3, 4, 3, Q("9 mm")))
sketch8.addConstraint(Sketcher.Constraint("DistanceX", -1, 1, 1, 3, Q("11.7 mm")))
sketch8.addConstraint(Sketcher.Constraint("DistanceY", 1, 3, -1, 1, Q("22.5 mm")))
pocket4 = body2.newObject("PartDesign::Pocket", "Pocket003")
pocket4.Profile = sketch8
pocket4.Length = 10
pocket4.Reversed = True

# Sketch on XZ plane
sketch9 = body2.newObject("Sketcher::SketchObject", "Sketch008")
sketch9.AttachmentSupport = (doc.getObject("XZ_Plane001"), [""])
sketch9.MapMode = "FlatFace"
sketch9.AttachmentOffset = App.Placement(App.Vector(0, 0, -24), App.Rotation())
sketch9.addGeometry(Part.Circle(App.Vector(-24, -32, 0), App.Vector(0, 0, 1), 5.25), False)
sketch9.addConstraint(Sketcher.Constraint("Diameter", 0, Q("10.5 mm")))
sketch9.addConstraint(Sketcher.Constraint("DistanceX", 0, 3, -1, 1, Q("24 mm")))
sketch9.addConstraint(Sketcher.Constraint("DistanceY", 0, 3, -1, 1, Q("32 mm")))
doc.recompute()
hole2 = body2.newObject("PartDesign::Hole", "Hole001")
hole2.Profile = sketch9
hole2.ThreadType = "None"
hole2.Diameter = 10.5
hole2.DepthType = "Dimension"
hole2.Depth = 9.9
hole2.DrillPoint = "Angled"
hole2.DrillPointAngle = 118
hole2.Reversed = True
mirroring.Visibility = False

doc.recompute()
